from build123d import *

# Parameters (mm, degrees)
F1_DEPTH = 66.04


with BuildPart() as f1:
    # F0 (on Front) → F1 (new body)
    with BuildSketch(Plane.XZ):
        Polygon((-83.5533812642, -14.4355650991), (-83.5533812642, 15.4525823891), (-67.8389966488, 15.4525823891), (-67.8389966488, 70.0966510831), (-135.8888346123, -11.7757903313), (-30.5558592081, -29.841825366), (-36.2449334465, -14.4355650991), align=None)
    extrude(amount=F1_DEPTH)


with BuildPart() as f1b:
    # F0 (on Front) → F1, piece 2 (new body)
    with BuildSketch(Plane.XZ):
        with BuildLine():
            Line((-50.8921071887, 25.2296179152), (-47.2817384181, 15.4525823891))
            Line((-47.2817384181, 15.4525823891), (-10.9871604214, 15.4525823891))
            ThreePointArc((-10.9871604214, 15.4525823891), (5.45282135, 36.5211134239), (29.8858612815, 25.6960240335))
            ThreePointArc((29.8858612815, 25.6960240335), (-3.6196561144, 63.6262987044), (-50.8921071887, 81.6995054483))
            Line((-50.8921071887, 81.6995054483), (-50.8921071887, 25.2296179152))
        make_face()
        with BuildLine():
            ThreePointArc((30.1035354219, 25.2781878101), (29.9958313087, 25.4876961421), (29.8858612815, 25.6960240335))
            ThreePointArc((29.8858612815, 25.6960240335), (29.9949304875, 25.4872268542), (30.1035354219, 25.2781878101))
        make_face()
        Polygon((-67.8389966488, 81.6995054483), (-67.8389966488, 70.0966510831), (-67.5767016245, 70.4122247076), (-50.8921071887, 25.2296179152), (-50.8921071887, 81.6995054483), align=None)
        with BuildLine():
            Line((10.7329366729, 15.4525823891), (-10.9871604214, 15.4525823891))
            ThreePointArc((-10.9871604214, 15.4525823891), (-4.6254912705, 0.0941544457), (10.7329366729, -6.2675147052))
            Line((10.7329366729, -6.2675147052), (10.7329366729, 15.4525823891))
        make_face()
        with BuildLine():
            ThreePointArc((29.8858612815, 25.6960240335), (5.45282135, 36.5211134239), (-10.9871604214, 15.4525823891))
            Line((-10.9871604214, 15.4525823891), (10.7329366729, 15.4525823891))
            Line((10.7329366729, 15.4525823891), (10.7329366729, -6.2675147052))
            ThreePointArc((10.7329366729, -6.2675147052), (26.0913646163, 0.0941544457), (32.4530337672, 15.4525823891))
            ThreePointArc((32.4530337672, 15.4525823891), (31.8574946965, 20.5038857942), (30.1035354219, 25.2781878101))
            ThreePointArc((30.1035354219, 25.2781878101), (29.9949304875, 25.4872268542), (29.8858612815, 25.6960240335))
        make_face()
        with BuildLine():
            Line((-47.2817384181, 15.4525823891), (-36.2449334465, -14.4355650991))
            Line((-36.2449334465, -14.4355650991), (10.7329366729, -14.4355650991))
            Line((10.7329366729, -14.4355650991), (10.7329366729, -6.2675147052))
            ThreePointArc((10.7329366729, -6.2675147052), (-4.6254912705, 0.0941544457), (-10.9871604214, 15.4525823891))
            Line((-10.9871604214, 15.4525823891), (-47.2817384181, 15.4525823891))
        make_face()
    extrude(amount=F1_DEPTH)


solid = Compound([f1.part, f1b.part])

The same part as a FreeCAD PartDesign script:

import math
import FreeCAD as App
import Part
import Sketcher

V = App.Vector
Q = App.Units.Quantity

doc = App.newDocument("Part")
body = doc.addObject("PartDesign::Body", "Body")

sketch1 = body.newObject("Sketcher::SketchObject", "Sketch")
sketch1.AttachmentSupport = (doc.getObject("XZ_Plane"), [""])
sketch1.MapMode = "FlatFace"
sketch1.addGeometry(Part.LineSegment(V(-84, -14, 0), V(-84, 15, 0)), False)
sketch1.addGeometry(Part.LineSegment(V(-84, 15, 0), V(-68, 15, 0)), False)
sketch1.addGeometry(Part.LineSegment(V(-68, 15, 0), V(-68, 70, 0)), False)
sketch1.addGeometry(Part.LineSegment(V(-68, 70, 0), V(-136, -12, 0)), False)
sketch1.addGeometry(Part.LineSegment(V(-136, -12, 0), V(-31, -30, 0)), False)
sketch1.addGeometry(Part.LineSegment(V(-31, -30, 0), V(-36, -14, 0)), False)
sketch1.addGeometry(Part.LineSegment(V(-36, -14, 0), V(-84, -14, 0)), False)
sketch1.addConstraint(Sketcher.Constraint("Coincident", 0, 2, 1, 1))
sketch1.addConstraint(Sketcher.Constraint("Coincident", 1, 2, 2, 1))
sketch1.addConstraint(Sketcher.Constraint("Coincident", 2, 2, 3, 1))
sketch1.addConstraint(Sketcher.Constraint("Coincident", 3, 2, 4, 1))
sketch1.addConstraint(Sketcher.Constraint("Coincident", 4, 2, 5, 1))
sketch1.addConstraint(Sketcher.Constraint("Coincident", 5, 2, 6, 1))
sketch1.addConstraint(Sketcher.Constraint("Coincident", 6, 2, 0, 1))
sketch1.addConstraint(Sketcher.Constraint("Vertical", 0))
sketch1.addConstraint(Sketcher.Constraint("Horizontal", 1))
sketch1.addConstraint(Sketcher.Constraint("Vertical", 2))
sketch1.addConstraint(Sketcher.Constraint("Horizontal", 6))
sketch1.addConstraint(Sketcher.Constraint("DistanceY", 2, 1, 2, 2, 54.644069))
sketch1.addConstraint(Sketcher.Constraint("DistanceX", 3, 2, 5, 2, 99.643901))
sketch1.addConstraint(Sketcher.Constraint("Distance", 4, 106.871031))
sketch1.addConstraint(Sketcher.Constraint("DistanceX", 1, 1, 1, 2, 15.714385))
sketch1.addConstraint(Sketcher.Constraint("DistanceX", 6, 2, 6, 1, 47.308448))
sketch1.addConstraint(Sketcher.Constraint("DistanceY", 0, 1, 0, 2, 29.888147))
sketch1.addConstraint(Sketcher.Constraint("DistanceX", 0, 2, -1, 1, 83.553381))
sketch1.addConstraint(Sketcher.Constraint("DistanceY", -1, 1, 2, 2, 70.096651))
sketch1.addConstraint(Sketcher.Constraint("DistanceY", 3, 2, -1, 1, 11.77579))
sketch1.addConstraint(Sketcher.Constraint("DistanceX", 4, 2, -1, 1, 30.555859))
pad1 = body.newObject("PartDesign::Pad", "Pad")
pad1.Profile = sketch1
pad1.Length = Q("2.6 in")
body2 = doc.addObject("PartDesign::Body", "Body001")

sketch2 = body2.newObject("Sketcher::SketchObject", "Sketch001")
sketch2.AttachmentSupport = (doc.getObject("XZ_Plane001"), [""])
sketch2.MapMode = "FlatFace"
sketch2.addGeometry(Part.ArcOfCircle(Part.Circle(V(10.73, 15.45, 0), V(0, 0, 1), 21.72), math.radians(-90), math.radians(0)), False)
sketch2.addGeometry(Part.ArcOfCircle(Part.Circle(V(10.73, 15.45, 0), V(0, 0, 1), 21.72), math.radians(0), math.radians(27)), False)
sketch2.addGeometry(Part.ArcOfCircle(Part.Circle(V(10.73, 15.45, 0), V(0, 0, 1), 21.72), math.radians(26.9), math.radians(28.14)), False)
sketch2.addGeometry(Part.ArcOfCircle(Part.Circle(V(-64.02, -23.49, 0), V(0, 0, 1), 106), math.radians(28), math.radians(83)), False)
sketch2.addGeometry(Part.LineSegment(V(-50.89, 81.7, 0), V(-67.84, 81.7, 0)), False)
sketch2.addGeometry(Part.LineSegment(V(-67.84, 81.7, 0), V(-67.84, 70.1, 0)), False)
sketch2.addGeometry(Part.LineSegment(V(-67.84, 70.1, 0), V(-67.58, 70.41, 0)), False)
sketch2.addGeometry(Part.LineSegment(V(-67.58, 70.41, 0), V(-47.28, 15.45, 0)), False)
sketch2.addGeometry(Part.LineSegment(V(-47.28, 15.45, 0), V(-36.24, -14.44, 0)), False)
sketch2.addGeometry(Part.LineSegment(V(-36.24, -14.44, 0), V(10.73, -14.44, 0)), False)
sketch2.addGeometry(Part.LineSegment(V(10.73, -14.44, 0), V(10.73, -6.27, 0)), False)
sketch2.addConstraint(Sketcher.Constraint("Tangent", 0, 2, 1, 1))
sketch2.addConstraint(Sketcher.Constraint("Tangent", 1, 2, 2, 1))
sketch2.addConstraint(Sketcher.Constraint("Coincident", 2, 2, 3, 1))
sketch2.addConstraint(Sketcher.Constraint("Coincident", 3, 2, 4, 1))
sketch2.addConstraint(Sketcher.Constraint("Coincident", 4, 2, 5, 1))
sketch2.addConstraint(Sketcher.Constraint("Coincident", 5, 2, 6, 1))
sketch2.addConstraint(Sketcher.Constraint("Coincident", 6, 2, 7, 1))
sketch2.addConstraint(Sketcher.Constraint("Coincident", 7, 2, 8, 1))
sketch2.addConstraint(Sketcher.Constraint("Coincident", 8, 2, 9, 1))
sketch2.addConstraint(Sketcher.Constraint("Coincident", 9, 2, 10, 1))
sketch2.addConstraint(Sketcher.Constraint("Coincident", 10, 2, 0, 1))
sketch2.addConstraint(Sketcher.Constraint("Horizontal", 4))
sketch2.addConstraint(Sketcher.Constraint("Vertical", 5))
sketch2.addConstraint(Sketcher.Constraint("Horizontal", 9))
sketch2.addConstraint(Sketcher.Constraint("Vertical", 10))
sketch2.addConstraint(Sketcher.Constraint("Coincident", 2, 3, 0, 3))
sketch2.addConstraint(Sketcher.Constraint("Parallel", 7, 8))
sketch2.addConstraint(Sketcher.Constraint("Horizontal", 2, 3, 0, 2))
sketch2.addConstraint(Sketcher.Constraint("Horizontal", 0, 2, 7, 2))
sketch2.addConstraint(Sketcher.Constraint("Vertical", 2, 3, 9, 2))
sketch2.addConstraint(Sketcher.Constraint("DistanceX", 6, 2, -1, 1, Q("2.6605001 in")))
sketch2.addConstraint(Sketcher.Constraint("Radius", 0, 21.720097))
sketch2.addConstraint(Sketcher.Constraint("Radius", 3, 106.003684))
sketch2.addConstraint(Sketcher.Constraint("DistanceX", 1, 2, 0, 2, Q("0.0924999 in")))
sketch2.addConstraint(Sketcher.Constraint("DistanceX", 4, 2, 4, 1, 16.946889))
sketch2.addConstraint(Sketcher.Constraint("DistanceX", 9, 1, 9, 2, 46.97787))
sketch2.addConstraint(Sketcher.Constraint("DistanceY", 10, 1, 10, 2, 8.16805))
sketch2.addConstraint(Sketcher.Constraint("Distance", 8, 31.860829))
sketch2.addConstraint(Sketcher.Constraint("DistanceY", 5, 2, 5, 1, 11.602854))
sketch2.addConstraint(Sketcher.Constraint("DistanceX", 3, 3, -1, 1, 64.016518))
sketch2.addConstraint(Sketcher.Constraint("DistanceY", 3, 3, -1, 1, 23.488568))
sketch2.addConstraint(Sketcher.Constraint("DistanceX", -1, 1, 2, 2, 29.885861))
sketch2.addConstraint(Sketcher.Constraint("DistanceY", -1, 1, 5, 2, 70.096651))
sketch2.addConstraint(Sketcher.Constraint("DistanceX", 7, 2, -1, 1, 47.281738))
pad2 = body2.newObject("PartDesign::Pad", "Pad001")
pad2.Profile = sketch2
pad2.Length = Q("2.6 in")

doc.recompute()
